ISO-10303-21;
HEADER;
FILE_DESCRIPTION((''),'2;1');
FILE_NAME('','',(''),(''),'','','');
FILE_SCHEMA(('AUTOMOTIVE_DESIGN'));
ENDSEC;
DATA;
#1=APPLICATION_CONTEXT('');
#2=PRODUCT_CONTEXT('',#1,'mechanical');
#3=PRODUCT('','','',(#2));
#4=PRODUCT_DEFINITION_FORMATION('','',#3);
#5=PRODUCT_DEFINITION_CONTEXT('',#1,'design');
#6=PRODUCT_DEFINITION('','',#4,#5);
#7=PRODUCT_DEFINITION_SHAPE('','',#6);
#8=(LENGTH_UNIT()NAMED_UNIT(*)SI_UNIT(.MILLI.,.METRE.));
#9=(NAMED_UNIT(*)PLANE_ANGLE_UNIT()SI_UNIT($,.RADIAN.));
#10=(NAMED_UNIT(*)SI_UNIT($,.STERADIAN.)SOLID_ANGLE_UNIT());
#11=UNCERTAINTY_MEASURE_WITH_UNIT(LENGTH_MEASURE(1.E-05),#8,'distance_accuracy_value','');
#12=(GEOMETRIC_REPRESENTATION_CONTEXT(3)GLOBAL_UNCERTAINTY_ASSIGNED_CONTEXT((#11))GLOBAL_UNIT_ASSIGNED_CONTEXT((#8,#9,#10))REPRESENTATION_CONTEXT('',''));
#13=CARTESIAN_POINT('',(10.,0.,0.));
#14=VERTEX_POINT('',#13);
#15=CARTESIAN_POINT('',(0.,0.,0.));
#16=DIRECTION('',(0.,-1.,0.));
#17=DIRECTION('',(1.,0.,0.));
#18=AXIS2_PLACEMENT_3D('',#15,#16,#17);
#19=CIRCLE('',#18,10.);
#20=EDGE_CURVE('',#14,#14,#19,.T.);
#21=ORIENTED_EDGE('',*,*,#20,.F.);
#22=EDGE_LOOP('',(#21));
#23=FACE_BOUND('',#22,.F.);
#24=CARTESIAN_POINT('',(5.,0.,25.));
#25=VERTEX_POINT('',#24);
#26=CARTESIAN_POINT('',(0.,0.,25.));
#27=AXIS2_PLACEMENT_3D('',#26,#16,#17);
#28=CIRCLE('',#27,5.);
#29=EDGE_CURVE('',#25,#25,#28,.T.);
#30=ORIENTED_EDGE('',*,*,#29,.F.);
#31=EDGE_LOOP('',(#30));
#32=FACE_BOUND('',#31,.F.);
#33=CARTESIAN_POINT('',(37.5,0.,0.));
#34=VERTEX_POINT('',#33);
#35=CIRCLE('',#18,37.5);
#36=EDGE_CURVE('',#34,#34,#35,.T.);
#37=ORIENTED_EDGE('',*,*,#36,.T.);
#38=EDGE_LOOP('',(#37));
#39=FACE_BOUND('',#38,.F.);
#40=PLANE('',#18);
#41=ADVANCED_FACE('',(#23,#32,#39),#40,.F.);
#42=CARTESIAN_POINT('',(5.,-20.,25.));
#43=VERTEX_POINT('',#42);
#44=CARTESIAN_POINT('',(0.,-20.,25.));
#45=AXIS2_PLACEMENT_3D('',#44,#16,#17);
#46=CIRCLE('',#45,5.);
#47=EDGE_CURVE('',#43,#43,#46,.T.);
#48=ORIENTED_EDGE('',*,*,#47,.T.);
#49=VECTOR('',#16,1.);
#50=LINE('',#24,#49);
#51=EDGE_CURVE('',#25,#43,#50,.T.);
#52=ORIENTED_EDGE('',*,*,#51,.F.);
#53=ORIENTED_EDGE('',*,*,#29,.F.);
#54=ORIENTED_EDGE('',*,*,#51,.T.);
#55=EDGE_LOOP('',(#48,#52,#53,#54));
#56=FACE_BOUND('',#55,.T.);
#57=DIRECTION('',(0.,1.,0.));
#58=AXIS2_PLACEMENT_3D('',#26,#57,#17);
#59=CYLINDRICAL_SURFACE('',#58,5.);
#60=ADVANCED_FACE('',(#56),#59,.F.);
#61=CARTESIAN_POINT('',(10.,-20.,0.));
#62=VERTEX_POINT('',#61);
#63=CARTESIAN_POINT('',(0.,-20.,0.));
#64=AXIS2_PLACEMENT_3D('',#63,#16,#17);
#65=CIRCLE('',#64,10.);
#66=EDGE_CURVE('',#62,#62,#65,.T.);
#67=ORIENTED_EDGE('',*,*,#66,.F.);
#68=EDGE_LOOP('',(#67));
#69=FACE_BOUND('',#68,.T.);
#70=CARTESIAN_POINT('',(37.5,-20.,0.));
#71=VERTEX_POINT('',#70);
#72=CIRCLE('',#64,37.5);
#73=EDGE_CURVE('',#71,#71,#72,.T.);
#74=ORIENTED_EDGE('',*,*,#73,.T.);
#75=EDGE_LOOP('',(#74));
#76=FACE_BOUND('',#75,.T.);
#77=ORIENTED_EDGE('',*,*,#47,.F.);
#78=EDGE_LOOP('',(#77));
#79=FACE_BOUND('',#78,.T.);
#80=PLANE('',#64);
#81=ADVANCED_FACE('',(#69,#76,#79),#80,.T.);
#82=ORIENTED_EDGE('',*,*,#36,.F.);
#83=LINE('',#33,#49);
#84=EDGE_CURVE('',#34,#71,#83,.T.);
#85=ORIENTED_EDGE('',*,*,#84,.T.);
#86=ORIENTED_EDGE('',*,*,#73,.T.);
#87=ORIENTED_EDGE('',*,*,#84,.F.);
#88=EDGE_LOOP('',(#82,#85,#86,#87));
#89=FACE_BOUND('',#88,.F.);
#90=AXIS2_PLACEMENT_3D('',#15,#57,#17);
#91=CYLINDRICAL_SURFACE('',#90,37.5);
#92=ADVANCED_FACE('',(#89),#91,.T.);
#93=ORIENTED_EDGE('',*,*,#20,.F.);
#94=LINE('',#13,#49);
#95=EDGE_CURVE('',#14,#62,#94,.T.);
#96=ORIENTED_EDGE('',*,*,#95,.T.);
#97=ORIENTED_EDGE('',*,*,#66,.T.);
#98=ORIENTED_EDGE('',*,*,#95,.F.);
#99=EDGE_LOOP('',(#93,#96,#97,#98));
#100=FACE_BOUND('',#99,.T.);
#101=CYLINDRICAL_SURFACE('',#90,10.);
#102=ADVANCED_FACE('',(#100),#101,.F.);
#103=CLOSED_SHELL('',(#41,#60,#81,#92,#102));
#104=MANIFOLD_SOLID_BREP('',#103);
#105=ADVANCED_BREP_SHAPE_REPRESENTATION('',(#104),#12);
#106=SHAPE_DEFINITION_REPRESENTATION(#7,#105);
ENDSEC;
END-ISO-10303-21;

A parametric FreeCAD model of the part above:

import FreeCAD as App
import Part
import Sketcher

doc = App.newDocument("Part")
body = doc.addObject("PartDesign::Body", "Body")

sketch1 = body.newObject("Sketcher::SketchObject", "Sketch")
sketch1.AttachmentSupport = (doc.getObject("XZ_Plane"), [""])
sketch1.MapMode = "FlatFace"
sketch1.addGeometry([
    Part.Circle(App.Vector(0, 0, 0), App.Vector(0, 0, 1), 38),
    Part.Circle(App.Vector(0, 0, 0), App.Vector(0, 0, 1), 10),
    Part.Circle(App.Vector(0, 25, 0), App.Vector(0, 0, 1), 5),
], False)
sketch1.addConstraint([
    Sketcher.Constraint("Coincident", 0, 3, -1, 1),
    Sketcher.Constraint("Coincident", 1, 3, -1, 1),
    Sketcher.Constraint("PointOnObject", 2, 3, -2),
    Sketcher.Constraint("Diameter", 0, 75.0),
    Sketcher.Constraint("Diameter", 1, 20.0),
    Sketcher.Constraint("Diameter", 2, 10.0),
    Sketcher.Constraint("DistanceY", -1, 1, 2, 3, 25.0),
])
pad1 = body.newObject("PartDesign::Pad", "Pad")
pad1.Profile = sketch1
pad1.Length = 20

doc.recompute()
